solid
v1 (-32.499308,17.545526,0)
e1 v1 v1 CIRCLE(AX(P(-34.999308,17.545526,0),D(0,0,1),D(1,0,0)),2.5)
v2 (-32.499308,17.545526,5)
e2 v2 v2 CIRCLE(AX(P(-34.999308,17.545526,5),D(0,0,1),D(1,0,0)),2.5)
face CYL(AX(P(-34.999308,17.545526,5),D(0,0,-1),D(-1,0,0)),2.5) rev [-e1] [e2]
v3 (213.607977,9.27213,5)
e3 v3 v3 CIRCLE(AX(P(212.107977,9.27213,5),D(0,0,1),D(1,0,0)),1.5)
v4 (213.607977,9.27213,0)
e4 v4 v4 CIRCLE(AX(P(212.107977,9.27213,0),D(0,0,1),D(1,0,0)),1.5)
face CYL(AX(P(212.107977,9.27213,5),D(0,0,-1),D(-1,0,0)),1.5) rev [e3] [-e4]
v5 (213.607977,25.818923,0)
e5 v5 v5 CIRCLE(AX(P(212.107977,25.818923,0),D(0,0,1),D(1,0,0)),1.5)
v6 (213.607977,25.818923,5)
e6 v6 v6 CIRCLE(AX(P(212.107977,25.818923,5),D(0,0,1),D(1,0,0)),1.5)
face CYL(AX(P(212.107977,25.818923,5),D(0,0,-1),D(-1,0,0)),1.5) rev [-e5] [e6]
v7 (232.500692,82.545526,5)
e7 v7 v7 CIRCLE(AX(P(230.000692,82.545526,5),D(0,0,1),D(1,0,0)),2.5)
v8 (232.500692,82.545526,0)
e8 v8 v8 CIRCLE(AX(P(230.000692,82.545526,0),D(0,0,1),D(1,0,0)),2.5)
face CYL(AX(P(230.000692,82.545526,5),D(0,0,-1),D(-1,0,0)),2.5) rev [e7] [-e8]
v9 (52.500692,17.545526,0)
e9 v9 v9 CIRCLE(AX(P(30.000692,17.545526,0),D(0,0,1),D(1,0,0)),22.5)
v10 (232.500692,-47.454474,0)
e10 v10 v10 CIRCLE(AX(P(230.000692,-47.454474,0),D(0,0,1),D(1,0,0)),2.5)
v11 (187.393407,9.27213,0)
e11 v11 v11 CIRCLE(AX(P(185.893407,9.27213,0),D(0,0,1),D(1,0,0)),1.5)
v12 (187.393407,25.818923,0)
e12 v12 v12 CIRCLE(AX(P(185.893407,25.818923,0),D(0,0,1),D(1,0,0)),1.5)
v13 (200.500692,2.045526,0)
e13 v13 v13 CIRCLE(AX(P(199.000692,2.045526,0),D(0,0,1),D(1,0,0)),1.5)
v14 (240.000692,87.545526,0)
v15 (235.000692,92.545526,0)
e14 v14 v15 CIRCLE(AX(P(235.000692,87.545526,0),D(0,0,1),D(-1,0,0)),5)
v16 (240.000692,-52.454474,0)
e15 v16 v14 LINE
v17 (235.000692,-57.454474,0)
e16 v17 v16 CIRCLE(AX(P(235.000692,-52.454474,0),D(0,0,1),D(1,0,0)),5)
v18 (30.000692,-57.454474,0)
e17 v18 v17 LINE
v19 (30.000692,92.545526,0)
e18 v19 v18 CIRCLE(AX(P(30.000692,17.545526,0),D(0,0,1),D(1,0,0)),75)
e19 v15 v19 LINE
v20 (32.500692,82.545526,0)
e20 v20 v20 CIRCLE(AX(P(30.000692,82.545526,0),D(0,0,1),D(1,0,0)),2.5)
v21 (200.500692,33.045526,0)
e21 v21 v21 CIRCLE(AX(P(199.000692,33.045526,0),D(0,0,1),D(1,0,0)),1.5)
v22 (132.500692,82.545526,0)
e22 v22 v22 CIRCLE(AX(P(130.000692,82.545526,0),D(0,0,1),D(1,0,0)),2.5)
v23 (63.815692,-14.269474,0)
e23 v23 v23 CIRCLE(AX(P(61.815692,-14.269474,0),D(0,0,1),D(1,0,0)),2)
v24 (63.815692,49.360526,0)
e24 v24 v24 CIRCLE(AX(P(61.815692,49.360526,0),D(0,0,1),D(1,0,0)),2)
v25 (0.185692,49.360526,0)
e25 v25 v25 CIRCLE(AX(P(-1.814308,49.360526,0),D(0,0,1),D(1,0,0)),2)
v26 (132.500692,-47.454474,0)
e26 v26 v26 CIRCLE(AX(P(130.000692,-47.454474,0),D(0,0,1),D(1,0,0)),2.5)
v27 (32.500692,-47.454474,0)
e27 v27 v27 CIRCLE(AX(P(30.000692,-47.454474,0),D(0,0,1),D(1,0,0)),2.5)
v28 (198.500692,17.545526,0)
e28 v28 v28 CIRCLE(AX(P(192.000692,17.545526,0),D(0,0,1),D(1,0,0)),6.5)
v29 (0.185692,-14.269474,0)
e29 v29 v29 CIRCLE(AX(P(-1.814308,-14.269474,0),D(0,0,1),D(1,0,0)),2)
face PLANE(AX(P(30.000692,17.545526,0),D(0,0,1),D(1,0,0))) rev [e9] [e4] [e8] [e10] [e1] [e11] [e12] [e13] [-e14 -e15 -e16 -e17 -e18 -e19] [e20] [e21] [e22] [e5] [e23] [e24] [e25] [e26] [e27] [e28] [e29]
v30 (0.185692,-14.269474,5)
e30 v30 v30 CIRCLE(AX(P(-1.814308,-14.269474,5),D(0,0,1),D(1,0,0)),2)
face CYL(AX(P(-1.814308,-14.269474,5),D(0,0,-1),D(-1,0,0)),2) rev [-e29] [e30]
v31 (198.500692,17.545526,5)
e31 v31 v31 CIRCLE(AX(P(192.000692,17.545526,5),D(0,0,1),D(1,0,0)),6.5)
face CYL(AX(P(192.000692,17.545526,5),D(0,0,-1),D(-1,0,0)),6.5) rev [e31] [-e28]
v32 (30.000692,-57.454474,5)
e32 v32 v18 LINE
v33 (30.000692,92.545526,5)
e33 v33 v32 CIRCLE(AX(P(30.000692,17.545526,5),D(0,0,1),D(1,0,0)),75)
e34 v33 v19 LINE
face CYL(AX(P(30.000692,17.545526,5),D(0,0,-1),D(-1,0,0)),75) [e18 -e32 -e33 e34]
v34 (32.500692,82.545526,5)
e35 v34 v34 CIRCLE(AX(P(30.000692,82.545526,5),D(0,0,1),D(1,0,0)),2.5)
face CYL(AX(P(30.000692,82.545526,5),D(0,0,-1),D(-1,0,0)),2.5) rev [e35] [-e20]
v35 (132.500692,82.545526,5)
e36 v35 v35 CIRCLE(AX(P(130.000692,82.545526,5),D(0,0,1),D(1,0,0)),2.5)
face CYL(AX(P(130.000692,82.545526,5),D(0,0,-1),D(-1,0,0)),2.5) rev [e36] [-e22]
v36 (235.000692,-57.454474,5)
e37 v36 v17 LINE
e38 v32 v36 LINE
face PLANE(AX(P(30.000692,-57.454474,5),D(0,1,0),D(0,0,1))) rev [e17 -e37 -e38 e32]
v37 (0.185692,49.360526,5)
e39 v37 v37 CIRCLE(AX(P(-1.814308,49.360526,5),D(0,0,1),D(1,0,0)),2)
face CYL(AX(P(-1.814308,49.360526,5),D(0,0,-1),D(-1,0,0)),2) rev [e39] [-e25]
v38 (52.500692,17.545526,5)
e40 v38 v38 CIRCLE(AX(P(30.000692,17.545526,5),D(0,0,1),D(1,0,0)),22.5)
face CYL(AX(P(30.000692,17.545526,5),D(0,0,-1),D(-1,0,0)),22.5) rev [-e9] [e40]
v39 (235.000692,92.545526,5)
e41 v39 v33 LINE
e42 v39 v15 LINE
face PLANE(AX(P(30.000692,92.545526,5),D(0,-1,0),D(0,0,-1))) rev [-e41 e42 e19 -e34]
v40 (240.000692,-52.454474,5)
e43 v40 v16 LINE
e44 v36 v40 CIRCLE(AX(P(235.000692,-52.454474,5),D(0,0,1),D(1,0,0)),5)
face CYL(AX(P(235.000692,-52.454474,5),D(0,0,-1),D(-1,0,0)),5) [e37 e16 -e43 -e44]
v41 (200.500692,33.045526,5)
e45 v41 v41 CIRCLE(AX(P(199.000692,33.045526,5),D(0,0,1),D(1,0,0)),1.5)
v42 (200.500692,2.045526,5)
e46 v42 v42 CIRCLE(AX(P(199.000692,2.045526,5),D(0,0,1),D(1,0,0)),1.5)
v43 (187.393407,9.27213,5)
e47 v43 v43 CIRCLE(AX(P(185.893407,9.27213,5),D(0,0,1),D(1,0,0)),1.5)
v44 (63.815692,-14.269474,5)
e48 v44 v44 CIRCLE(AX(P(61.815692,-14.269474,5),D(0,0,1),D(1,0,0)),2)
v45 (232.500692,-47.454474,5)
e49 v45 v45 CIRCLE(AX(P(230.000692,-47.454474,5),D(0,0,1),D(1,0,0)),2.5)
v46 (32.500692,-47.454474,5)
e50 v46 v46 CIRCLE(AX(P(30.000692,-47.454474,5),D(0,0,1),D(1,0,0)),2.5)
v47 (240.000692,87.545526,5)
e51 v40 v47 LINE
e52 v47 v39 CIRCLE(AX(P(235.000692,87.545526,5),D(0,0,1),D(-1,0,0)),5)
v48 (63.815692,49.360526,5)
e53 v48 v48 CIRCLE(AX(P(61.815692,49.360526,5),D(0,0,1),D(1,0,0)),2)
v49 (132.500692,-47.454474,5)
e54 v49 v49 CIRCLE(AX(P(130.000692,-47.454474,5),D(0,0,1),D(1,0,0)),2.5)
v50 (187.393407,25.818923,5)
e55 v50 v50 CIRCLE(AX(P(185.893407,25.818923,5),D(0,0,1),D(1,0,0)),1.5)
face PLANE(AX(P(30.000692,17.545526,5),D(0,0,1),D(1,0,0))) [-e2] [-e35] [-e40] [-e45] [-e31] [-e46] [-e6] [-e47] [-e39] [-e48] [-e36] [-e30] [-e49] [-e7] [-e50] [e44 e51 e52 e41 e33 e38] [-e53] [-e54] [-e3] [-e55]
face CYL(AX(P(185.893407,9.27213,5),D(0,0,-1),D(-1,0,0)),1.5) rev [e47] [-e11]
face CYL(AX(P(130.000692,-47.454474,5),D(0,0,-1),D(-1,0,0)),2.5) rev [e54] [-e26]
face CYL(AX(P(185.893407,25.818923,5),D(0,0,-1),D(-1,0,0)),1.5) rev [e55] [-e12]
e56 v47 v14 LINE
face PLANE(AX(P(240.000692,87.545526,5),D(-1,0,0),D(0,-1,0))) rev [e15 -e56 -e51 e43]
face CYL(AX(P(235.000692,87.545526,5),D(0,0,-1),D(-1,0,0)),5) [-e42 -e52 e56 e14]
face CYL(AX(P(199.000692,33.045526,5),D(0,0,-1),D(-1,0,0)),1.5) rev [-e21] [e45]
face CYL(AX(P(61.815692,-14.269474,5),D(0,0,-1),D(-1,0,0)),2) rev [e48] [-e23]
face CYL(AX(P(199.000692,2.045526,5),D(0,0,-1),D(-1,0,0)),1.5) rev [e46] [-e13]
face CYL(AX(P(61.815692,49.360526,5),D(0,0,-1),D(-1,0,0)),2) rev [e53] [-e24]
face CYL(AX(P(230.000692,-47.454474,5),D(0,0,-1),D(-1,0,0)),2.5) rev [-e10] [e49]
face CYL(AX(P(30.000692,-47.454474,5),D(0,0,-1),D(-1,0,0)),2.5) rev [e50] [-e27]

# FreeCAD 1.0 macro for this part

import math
import FreeCAD as App
import Part
import Sketcher

V = App.Vector
Q = App.Units.Quantity

doc = App.newDocument("Part")
body = doc.addObject("PartDesign::Body", "Body")

sketch1 = body.newObject("Sketcher::SketchObject", "Sketch")
sketch1.AttachmentSupport = (doc.getObject("XY_Plane"), [""])
sketch1.MapMode = "FlatFace"
sketch1.addGeometry(Part.LineSegment(V(235, 92.5, 0), V(30, 92.5, 0)), False)
sketch1.addGeometry(Part.ArcOfCircle(Part.Circle(V(30, 17.5, 0), V(0, 0, 1), 75), math.radians(90), math.radians(270)), False)
sketch1.addGeometry(Part.LineSegment(V(30, -57.5, 0), V(235, -57.5, 0)), False)
sketch1.addGeometry(Part.ArcOfCircle(Part.Circle(V(235, -52.5, 0), V(0, 0, 1), 5), math.radians(-90), math.radians(0)), False)
sketch1.addGeometry(Part.LineSegment(V(240, -52.5, 0), V(240, 87.5, 0)), False)
sketch1.addGeometry(Part.ArcOfCircle(Part.Circle(V(235, 87.5, 0), V(0, 0, 1), 5), math.radians(0), math.radians(90)), False)
sketch1.addGeometry(Part.Circle(V(230, -47.5, 0), V(0, 0, 1), 2.5), False)
sketch1.addGeometry(Part.Circle(V(130, -47.5, 0), V(0, 0, 1), 2.5), False)
sketch1.addGeometry(Part.Circle(V(199, 2, 0), V(0, 0, 1), 1.5), False)
sketch1.addGeometry(Part.Circle(V(212.1, 9.3, 0), V(0, 0, 1), 1.5), False)
sketch1.addGeometry(Part.Circle(V(185.9, 9.3, 0), V(0, 0, 1), 1.5), False)
sketch1.addGeometry(Part.Circle(V(30, -47.5, 0), V(0, 0, 1), 2.5), False)
sketch1.addGeometry(Part.Circle(V(61.8, -14.3, 0), V(0, 0, 1), 2), False)
sketch1.addGeometry(Part.Circle(V(-1.8, -14.3, 0), V(0, 0, 1), 2), False)
sketch1.addGeometry(Part.Circle(V(212.1, 25.8, 0), V(0, 0, 1), 1.5), False)
sketch1.addGeometry(Part.Circle(V(199, 33, 0), V(0, 0, 1), 1.5), False)
sketch1.addGeometry(Part.Circle(V(192, 17.5, 0), V(0, 0, 1), 6.5), False)
sketch1.addGeometry(Part.Circle(V(185.9, 25.8, 0), V(0, 0, 1), 1.5), False)
sketch1.addGeometry(Part.Circle(V(230, 82.5, 0), V(0, 0, 1), 2.5), False)
sketch1.addGeometry(Part.Circle(V(130, 82.5, 0), V(0, 0, 1), 2.5), False)
sketch1.addGeometry(Part.Circle(V(61.8, 49.4, 0), V(0, 0, 1), 2), False)
sketch1.addGeometry(Part.Circle(V(30, 17.5, 0), V(0, 0, 1), 22.5), False)
sketch1.addGeometry(Part.Circle(V(-35, 17.5, 0), V(0, 0, 1), 2.5), False)
sketch1.addGeometry(Part.Circle(V(-1.8, 49.4, 0), V(0, 0, 1), 2), False)
sketch1.addGeometry(Part.Circle(V(30, 82.5, 0), V(0, 0, 1), 2.5), False)
sketch1.addConstraint(Sketcher.Constraint("Tangent", 0, 2, 1, 1))
sketch1.addConstraint(Sketcher.Constraint("Tangent", 1, 2, 2, 1))
sketch1.addConstraint(Sketcher.Constraint("Tangent", 2, 2, 3, 1))
sketch1.addConstraint(Sketcher.Constraint("Tangent", 3, 2, 4, 1))
sketch1.addConstraint(Sketcher.Constraint("Tangent", 4, 2, 5, 1))
sketch1.addConstraint(Sketcher.Constraint("Tangent", 5, 2, 0, 1))
sketch1.addConstraint(Sketcher.Constraint("Horizontal", 0))
sketch1.addConstraint(Sketcher.Constraint("Horizontal", 2))
sketch1.addConstraint(Sketcher.Constraint("Vertical", 4))
sketch1.addConstraint(Sketcher.Constraint("Coincident", 21, 3, 1, 3))
sketch1.addConstraint(Sketcher.Constraint("Equal", 3, 5))
sketch1.addConstraint(Sketcher.Constraint("Equal", 6, 7))
sketch1.addConstraint(Sketcher.Constraint("Equal", 8, 9))
sketch1.addConstraint(Sketcher.Constraint("Equal", 9, 10))
sketch1.addConstraint(Sketcher.Constraint("Equal", 7, 11))
sketch1.addConstraint(Sketcher.Constraint("Equal", 12, 13))
sketch1.addConstraint(Sketcher.Constraint("Equal", 10, 14))
sketch1.addConstraint(Sketcher.Constraint("Equal", 14, 15))
sketch1.addConstraint(Sketcher.Constraint("Equal", 15, 17))
sketch1.addConstraint(Sketcher.Constraint("Equal", 11, 18))
sketch1.addConstraint(Sketcher.Constraint("Equal", 18, 19))
sketch1.addConstraint(Sketcher.Constraint("Equal", 13, 20))
sketch1.addConstraint(Sketcher.Constraint("Equal", 19, 22))
sketch1.addConstraint(Sketcher.Constraint("Equal", 20, 23))
sketch1.addConstraint(Sketcher.Constraint("Equal", 22, 24))
sketch1.addConstraint(Sketcher.Constraint("Horizontal", 6, 3, 7, 3))
sketch1.addConstraint(Sketcher.Constraint("Horizontal", 9, 3, 10, 3))
sketch1.addConstraint(Sketcher.Constraint("Horizontal", 7, 3, 11, 3))
sketch1.addConstraint(Sketcher.Constraint("Horizontal", 12, 3, 13, 3))
sketch1.addConstraint(Sketcher.Constraint("Horizontal", 1, 3, 16, 3))
sketch1.addConstraint(Sketcher.Constraint("Horizontal", 14, 3, 17, 3))
sketch1.addConstraint(Sketcher.Constraint("Horizontal", 18, 3, 19, 3))
sketch1.addConstraint(Sketcher.Constraint("Horizontal", 21, 3, 22, 3))
sketch1.addConstraint(Sketcher.Constraint("Horizontal", 20, 3, 23, 3))
sketch1.addConstraint(Sketcher.Constraint("Horizontal", 19, 3, 24, 3))
sketch1.addConstraint(Sketcher.Constraint("Vertical", 1, 3, 11, 3))
sketch1.addConstraint(Sketcher.Constraint("Vertical", 9, 3, 14, 3))
sketch1.addConstraint(Sketcher.Constraint("Vertical", 8, 3, 15, 3))
sketch1.addConstraint(Sketcher.Constraint("Vertical", 10, 3, 17, 3))
sketch1.addConstraint(Sketcher.Constraint("Vertical", 6, 3, 18, 3))
sketch1.addConstraint(Sketcher.Constraint("Vertical", 7, 3, 19, 3))
sketch1.addConstraint(Sketcher.Constraint("Vertical", 12, 3, 20, 3))
sketch1.addConstraint(Sketcher.Constraint("Vertical", 13, 3, 23, 3))
sketch1.addConstraint(Sketcher.Constraint("Vertical", 21, 3, 24, 3))
sketch1.addConstraint(Sketcher.Constraint("Diameter", 6, Q("5 mm")))
sketch1.addConstraint(Sketcher.Constraint("Diameter", 8, Q("3 mm")))
sketch1.addConstraint(Sketcher.Constraint("Diameter", 12, Q("4 mm")))
sketch1.addConstraint(Sketcher.Constraint("Diameter", 16, Q("13 mm")))
sketch1.addConstraint(Sketcher.Constraint("Diameter", 21, Q("45 mm")))
sketch1.addConstraint(Sketcher.Constraint("Radius", 1, Q("75 mm")))
sketch1.addConstraint(Sketcher.Constraint("Radius", 3, Q("5 mm")))
sketch1.addConstraint(Sketcher.Constraint("DistanceX", 0, 2, 0, 1, Q("205 mm")))
sketch1.addConstraint(Sketcher.Constraint("DistanceX", 6, 3, 3, 3, Q("5 mm")))
sketch1.addConstraint(Sketcher.Constraint("DistanceY", 3, 3, 6, 3, Q("5 mm")))
sketch1.addConstraint(Sketcher.Constraint("DistanceX", 7, 3, 6, 3, Q("100 mm")))
sketch1.addConstraint(Sketcher.Constraint("DistanceX", 8, 3, 6, 3, Q("31 mm")))
sketch1.addConstraint(Sketcher.Constraint("DistanceY", 8, 3, 15, 3, Q("31 mm")))
sketch1.addConstraint(Sketcher.Constraint("DistanceX", 16, 3, 15, 3, Q("7 mm")))
sketch1.addConstraint(Sketcher.Constraint("DistanceY", 18, 3, 5, 3, Q("5 mm")))
sketch1.addConstraint(Sketcher.Constraint("DistanceX", 22, 3, 1, 3, Q("65 mm")))
sketch1.addConstraint(Sketcher.Constraint("DistanceY", 6, 3, 8, 3, Q("49.5 mm")))
sketch1.addConstraint(Sketcher.Constraint("DistanceX", 13, 3, 12, 3, Q("63.63 mm")))
sketch1.addConstraint(Sketcher.Constraint("DistanceY", 12, 3, 20, 3, Q("63.63 mm")))
sketch1.addConstraint(Sketcher.Constraint("DistanceX", 1, 3, 12, 3, Q("31.815 mm")))
sketch1.addConstraint(Sketcher.Constraint("DistanceY", 12, 3, 1, 3, Q("31.815 mm")))
sketch1.addConstraint(Sketcher.Constraint("DistanceY", -1, 1, 9, 3, Q("9.27213 mm")))
sketch1.addConstraint(Sketcher.Constraint("DistanceX", 10, 3, 9, 3, Q("26.214569 mm")))
sketch1.addConstraint(Sketcher.Constraint("DistanceX", -1, 1, 1, 3, Q("30.000692 mm")))
sketch1.addConstraint(Sketcher.Constraint("DistanceY", -1, 1, 1, 3, Q("17.545526 mm")))
sketch1.addConstraint(Sketcher.Constraint("DistanceX", -1, 1, 9, 3, Q("212.107977 mm")))
sketch1.addConstraint(Sketcher.Constraint("DistanceY", -1, 1, 14, 3, Q("25.818923 mm")))
pad1 = body.newObject("PartDesign::Pad", "Pad")
pad1.Profile = sketch1
pad1.Length = 5

doc.recompute()
